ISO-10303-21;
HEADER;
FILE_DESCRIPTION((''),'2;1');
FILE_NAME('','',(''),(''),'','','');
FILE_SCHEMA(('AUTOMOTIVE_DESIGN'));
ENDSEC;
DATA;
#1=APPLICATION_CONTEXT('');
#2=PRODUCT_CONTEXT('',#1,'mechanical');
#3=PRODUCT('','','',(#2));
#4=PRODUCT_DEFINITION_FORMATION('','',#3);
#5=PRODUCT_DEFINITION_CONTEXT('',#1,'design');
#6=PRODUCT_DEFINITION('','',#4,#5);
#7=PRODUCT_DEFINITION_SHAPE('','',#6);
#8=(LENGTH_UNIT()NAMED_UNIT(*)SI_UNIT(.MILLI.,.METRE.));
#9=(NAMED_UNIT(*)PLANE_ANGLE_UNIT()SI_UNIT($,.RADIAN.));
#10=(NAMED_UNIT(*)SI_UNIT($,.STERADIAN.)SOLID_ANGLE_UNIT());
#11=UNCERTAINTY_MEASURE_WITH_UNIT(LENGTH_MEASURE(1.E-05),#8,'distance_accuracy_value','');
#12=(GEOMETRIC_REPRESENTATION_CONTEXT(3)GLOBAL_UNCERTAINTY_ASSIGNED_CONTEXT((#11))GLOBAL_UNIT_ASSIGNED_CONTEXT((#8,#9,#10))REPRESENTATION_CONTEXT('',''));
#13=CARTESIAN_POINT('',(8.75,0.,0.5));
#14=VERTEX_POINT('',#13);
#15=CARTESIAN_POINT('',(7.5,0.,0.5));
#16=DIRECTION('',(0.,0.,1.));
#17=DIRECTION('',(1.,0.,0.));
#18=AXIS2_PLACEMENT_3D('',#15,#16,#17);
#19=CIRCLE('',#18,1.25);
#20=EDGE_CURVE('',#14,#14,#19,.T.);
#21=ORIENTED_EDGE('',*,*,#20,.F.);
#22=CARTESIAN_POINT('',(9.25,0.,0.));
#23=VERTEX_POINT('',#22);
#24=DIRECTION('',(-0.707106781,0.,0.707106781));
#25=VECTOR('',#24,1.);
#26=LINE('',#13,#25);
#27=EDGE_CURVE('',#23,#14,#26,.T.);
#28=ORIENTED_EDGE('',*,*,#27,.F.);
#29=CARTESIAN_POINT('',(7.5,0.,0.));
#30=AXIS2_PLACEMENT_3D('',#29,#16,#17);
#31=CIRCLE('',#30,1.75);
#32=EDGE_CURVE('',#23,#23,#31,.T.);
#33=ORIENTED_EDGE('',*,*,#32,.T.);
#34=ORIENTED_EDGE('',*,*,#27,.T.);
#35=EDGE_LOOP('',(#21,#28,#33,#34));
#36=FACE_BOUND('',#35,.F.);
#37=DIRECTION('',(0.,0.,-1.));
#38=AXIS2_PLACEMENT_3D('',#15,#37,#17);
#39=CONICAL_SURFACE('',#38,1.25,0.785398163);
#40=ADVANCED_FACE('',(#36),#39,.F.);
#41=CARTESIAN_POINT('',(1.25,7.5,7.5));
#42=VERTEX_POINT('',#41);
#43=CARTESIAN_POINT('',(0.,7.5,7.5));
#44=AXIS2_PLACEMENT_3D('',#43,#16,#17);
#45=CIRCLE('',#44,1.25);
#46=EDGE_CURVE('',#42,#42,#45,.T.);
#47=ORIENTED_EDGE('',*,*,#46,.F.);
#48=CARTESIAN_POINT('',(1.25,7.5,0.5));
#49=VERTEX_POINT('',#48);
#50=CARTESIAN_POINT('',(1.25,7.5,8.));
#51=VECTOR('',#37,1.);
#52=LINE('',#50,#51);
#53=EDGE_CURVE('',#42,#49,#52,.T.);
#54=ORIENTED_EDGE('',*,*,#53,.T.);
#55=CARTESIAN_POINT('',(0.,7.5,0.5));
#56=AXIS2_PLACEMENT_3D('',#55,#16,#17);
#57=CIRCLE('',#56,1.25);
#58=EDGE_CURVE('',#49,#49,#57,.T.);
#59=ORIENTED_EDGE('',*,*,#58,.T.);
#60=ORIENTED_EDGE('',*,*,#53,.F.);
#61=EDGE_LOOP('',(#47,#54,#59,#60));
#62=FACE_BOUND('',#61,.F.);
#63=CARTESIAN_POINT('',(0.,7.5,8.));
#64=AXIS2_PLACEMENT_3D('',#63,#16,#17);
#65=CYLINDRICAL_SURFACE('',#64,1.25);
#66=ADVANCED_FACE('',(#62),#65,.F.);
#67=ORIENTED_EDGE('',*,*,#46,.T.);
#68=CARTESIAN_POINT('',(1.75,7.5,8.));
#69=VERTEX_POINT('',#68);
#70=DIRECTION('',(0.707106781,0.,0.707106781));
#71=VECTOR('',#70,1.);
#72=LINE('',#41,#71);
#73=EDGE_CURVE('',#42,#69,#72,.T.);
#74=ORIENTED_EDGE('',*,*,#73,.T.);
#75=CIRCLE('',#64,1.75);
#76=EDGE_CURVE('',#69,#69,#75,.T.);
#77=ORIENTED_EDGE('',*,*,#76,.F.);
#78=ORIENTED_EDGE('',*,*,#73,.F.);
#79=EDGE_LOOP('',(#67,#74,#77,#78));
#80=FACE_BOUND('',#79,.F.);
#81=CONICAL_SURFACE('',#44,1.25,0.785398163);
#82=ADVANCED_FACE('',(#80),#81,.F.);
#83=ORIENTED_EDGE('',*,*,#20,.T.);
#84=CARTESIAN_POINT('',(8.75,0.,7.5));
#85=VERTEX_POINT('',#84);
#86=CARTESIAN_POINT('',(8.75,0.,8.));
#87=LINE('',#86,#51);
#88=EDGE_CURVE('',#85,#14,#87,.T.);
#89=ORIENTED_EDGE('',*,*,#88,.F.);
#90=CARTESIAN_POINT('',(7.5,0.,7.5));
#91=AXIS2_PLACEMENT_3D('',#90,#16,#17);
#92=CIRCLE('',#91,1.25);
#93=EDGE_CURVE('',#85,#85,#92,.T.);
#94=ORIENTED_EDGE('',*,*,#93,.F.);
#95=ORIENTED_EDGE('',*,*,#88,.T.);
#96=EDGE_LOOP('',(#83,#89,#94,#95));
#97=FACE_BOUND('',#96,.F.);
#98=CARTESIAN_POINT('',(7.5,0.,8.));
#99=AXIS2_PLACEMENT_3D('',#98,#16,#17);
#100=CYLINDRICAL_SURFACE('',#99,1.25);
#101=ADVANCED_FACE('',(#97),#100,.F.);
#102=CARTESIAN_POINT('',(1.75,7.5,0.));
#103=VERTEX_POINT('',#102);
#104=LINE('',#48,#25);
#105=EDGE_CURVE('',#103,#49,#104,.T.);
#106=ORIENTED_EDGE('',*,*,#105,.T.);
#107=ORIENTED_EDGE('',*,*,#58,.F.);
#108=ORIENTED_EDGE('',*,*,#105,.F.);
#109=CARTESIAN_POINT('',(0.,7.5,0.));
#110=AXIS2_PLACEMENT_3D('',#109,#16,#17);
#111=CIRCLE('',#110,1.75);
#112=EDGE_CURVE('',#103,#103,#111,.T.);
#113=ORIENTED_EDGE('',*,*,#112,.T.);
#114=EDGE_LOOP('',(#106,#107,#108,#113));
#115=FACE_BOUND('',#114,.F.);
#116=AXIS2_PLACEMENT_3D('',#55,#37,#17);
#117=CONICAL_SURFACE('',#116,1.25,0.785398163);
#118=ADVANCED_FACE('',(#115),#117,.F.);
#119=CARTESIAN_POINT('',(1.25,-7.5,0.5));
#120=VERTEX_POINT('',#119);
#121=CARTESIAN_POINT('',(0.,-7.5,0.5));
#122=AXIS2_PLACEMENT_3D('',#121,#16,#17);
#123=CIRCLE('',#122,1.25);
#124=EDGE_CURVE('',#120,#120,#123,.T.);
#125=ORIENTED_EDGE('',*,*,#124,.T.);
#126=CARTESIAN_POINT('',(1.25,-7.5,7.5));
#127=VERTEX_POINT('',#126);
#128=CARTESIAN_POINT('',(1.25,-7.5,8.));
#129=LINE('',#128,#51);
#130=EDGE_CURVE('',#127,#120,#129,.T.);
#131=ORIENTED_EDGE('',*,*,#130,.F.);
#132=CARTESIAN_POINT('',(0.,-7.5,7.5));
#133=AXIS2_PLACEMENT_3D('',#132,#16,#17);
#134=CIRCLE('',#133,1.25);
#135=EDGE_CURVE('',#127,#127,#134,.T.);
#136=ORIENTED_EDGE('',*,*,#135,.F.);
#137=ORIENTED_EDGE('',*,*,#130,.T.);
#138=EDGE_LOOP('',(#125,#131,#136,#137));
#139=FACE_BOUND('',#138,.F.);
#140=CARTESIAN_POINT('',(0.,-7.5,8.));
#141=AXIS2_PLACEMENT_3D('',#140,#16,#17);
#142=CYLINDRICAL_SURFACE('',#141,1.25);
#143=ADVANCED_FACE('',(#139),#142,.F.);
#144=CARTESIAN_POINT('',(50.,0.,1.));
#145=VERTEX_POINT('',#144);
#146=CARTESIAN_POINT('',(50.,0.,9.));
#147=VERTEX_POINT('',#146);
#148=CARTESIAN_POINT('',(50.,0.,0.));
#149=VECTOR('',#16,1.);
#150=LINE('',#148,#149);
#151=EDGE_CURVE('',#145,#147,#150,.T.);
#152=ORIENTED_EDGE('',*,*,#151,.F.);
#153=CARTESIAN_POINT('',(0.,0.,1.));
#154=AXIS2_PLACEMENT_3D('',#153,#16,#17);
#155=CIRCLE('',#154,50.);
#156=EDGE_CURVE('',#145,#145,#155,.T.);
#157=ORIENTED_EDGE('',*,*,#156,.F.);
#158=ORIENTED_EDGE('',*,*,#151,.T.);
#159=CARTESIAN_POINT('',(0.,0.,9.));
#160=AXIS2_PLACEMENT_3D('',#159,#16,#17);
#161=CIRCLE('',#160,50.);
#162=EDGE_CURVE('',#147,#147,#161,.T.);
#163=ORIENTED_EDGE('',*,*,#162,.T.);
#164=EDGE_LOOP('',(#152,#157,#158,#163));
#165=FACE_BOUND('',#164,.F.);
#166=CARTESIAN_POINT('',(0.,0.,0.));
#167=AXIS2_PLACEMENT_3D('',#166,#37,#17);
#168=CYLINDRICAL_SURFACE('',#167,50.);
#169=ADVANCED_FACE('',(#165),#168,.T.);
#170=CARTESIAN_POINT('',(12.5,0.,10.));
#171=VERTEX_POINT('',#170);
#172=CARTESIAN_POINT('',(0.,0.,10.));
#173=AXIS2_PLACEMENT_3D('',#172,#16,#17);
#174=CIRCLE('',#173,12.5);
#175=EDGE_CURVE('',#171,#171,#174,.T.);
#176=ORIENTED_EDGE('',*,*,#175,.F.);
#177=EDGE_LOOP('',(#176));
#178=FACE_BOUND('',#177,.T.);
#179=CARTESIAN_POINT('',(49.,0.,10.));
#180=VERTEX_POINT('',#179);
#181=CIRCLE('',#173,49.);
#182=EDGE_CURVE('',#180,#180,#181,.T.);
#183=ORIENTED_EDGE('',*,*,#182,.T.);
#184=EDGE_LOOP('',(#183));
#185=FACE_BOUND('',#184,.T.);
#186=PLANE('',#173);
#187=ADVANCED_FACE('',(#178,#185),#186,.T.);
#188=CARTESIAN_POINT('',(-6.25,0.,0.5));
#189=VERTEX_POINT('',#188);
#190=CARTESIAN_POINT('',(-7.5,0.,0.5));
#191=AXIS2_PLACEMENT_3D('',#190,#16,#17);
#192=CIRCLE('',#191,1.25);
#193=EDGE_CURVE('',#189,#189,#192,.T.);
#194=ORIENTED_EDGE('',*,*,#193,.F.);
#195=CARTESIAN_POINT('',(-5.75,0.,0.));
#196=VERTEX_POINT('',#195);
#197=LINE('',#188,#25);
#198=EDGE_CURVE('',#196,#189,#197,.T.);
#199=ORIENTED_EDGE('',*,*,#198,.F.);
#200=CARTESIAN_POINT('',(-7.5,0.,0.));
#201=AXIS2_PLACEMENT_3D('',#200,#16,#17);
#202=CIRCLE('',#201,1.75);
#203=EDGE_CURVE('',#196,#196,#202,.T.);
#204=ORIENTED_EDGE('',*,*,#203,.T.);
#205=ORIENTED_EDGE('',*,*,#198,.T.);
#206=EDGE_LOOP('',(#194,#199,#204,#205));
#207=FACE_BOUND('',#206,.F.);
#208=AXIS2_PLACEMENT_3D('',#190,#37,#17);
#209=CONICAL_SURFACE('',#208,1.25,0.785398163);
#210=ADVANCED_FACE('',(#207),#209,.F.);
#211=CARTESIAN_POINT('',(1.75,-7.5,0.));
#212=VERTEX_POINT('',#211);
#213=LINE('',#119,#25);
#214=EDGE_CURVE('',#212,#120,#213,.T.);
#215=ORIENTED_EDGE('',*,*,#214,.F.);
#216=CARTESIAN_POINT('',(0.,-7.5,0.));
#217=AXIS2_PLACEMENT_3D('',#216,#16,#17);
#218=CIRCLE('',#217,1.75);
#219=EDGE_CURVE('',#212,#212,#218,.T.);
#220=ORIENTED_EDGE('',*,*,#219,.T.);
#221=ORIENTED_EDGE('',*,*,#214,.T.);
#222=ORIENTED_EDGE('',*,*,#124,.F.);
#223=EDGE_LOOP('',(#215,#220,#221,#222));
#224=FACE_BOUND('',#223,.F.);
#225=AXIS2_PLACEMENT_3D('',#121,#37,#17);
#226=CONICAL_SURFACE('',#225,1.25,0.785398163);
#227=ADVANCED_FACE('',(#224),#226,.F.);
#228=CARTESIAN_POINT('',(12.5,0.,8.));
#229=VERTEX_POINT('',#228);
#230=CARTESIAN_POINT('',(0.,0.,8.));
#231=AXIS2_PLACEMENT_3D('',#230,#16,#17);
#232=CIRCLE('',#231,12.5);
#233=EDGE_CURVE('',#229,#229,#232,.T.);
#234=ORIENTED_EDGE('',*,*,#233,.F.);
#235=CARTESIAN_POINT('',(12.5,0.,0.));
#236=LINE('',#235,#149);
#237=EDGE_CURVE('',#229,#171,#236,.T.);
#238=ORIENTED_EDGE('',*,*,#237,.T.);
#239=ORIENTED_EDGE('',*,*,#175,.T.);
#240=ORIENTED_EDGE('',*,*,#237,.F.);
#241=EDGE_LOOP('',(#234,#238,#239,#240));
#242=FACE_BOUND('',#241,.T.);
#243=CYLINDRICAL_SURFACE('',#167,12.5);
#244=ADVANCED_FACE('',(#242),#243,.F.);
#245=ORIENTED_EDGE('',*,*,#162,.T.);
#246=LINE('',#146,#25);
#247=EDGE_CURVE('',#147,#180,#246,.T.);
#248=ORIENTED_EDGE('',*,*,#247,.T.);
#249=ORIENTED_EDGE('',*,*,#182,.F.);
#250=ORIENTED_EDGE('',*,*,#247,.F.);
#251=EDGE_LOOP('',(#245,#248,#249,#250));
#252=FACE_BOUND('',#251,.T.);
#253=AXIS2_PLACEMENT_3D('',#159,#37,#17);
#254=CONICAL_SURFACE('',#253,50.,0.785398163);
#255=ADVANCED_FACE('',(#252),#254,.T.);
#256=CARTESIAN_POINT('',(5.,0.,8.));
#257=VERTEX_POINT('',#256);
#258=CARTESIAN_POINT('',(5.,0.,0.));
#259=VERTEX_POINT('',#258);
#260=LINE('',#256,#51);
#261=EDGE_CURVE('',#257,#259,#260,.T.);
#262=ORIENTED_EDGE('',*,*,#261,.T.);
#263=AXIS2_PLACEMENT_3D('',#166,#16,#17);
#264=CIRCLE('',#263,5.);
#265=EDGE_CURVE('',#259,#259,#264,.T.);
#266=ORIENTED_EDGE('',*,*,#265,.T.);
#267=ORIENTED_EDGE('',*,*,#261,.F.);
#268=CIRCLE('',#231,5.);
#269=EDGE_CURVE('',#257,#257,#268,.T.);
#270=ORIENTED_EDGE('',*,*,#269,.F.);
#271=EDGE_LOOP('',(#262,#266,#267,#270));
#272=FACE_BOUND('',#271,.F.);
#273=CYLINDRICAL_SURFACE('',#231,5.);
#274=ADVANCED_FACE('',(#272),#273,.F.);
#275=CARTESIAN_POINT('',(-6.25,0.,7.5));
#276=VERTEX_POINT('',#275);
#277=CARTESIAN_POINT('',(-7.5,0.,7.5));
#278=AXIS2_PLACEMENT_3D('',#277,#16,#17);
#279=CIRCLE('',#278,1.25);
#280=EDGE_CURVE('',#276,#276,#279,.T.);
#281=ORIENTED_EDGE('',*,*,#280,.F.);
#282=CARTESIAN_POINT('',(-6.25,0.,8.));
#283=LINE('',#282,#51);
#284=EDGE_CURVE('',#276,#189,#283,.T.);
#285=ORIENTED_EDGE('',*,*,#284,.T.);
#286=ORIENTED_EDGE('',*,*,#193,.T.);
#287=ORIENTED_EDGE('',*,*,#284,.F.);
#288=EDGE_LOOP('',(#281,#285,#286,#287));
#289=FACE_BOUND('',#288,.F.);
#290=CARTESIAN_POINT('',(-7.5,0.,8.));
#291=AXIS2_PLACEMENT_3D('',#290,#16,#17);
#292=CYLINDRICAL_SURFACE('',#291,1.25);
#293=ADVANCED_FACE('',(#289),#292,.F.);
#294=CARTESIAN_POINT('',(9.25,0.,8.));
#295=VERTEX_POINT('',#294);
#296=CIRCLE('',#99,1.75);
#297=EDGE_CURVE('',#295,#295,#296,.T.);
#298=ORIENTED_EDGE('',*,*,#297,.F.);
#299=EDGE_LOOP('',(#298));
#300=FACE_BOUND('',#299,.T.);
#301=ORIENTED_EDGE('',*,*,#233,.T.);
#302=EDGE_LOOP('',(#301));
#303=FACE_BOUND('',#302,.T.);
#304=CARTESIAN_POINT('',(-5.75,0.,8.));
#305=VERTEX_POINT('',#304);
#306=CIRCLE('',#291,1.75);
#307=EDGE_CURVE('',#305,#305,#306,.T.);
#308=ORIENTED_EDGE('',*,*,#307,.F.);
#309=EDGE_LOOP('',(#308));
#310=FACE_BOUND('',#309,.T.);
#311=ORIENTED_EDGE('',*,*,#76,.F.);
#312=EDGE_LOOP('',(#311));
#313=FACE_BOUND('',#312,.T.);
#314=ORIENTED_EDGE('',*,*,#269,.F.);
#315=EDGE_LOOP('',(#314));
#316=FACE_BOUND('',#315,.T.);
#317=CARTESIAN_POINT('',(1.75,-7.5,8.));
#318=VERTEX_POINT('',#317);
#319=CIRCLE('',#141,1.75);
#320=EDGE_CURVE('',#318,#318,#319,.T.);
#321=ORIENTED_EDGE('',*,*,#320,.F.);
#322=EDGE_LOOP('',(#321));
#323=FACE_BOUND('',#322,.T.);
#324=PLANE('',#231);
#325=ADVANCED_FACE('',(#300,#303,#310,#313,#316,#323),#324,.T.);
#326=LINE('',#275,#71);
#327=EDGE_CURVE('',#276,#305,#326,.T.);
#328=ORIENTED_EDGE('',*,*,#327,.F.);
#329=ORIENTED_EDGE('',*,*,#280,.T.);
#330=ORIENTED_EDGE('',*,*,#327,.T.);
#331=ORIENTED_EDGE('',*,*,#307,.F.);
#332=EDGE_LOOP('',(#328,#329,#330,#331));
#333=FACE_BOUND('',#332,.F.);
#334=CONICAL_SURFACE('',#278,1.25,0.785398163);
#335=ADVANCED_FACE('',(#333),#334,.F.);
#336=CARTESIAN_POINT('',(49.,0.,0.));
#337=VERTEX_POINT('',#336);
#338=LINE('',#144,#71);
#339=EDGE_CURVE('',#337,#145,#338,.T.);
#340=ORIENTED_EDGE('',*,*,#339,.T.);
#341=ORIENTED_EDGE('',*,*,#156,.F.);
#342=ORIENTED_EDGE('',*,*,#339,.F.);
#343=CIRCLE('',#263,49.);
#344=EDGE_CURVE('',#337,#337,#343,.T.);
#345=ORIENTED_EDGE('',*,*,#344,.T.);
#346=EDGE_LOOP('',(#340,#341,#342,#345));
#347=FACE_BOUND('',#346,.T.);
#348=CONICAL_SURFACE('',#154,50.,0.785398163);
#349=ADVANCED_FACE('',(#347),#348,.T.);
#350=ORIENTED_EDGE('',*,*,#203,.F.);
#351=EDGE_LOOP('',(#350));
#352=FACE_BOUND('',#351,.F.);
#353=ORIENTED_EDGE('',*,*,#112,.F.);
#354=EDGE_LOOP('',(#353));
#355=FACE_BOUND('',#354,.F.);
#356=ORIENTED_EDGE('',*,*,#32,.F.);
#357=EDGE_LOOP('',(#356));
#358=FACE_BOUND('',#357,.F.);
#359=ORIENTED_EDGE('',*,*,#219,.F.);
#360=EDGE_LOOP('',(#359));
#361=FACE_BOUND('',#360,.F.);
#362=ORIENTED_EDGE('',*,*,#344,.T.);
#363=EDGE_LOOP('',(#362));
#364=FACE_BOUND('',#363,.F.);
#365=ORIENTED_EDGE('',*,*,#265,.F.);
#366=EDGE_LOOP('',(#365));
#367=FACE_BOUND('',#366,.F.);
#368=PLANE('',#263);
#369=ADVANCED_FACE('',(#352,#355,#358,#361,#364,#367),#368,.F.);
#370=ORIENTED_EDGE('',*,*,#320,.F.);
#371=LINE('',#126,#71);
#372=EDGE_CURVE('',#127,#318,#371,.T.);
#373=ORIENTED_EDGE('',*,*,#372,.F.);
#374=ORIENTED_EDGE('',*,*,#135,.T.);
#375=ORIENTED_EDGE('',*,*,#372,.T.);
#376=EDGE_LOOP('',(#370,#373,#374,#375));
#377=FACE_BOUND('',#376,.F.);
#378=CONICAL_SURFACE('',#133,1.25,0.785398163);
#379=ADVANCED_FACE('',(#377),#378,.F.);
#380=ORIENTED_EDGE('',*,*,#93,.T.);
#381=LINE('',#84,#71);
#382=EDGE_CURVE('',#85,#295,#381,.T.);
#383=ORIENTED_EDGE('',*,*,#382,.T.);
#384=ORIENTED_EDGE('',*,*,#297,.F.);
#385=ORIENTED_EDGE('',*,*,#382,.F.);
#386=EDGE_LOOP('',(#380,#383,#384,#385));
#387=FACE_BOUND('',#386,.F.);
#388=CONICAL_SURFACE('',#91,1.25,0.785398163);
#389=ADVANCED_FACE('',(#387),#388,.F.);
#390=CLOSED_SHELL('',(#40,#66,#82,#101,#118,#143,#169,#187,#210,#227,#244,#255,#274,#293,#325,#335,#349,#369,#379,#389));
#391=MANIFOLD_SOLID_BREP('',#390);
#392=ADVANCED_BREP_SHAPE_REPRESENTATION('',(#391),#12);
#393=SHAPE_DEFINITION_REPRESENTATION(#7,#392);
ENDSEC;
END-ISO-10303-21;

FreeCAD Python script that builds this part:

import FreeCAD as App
import Part
import Sketcher


def edges_at(feature, points):
    """Names of the edges that pass closest to the given points."""
    edges = feature.Shape.Edges
    near = lambda p: min(range(len(edges)), key=lambda i: edges[i].distToShape(Part.Vertex(*p))[0])
    return sorted({f"Edge{near(p) + 1}" for p in points})

doc = App.newDocument("Part")
body = doc.addObject("PartDesign::Body", "Body")

# Sketch on XY plane
sketch1 = body.newObject("Sketcher::SketchObject", "Sketch")
sketch1.AttachmentSupport = (doc.getObject("XY_Plane"), [""])
sketch1.MapMode = "FlatFace"
sketch1.addGeometry([
    Part.Circle(App.Vector(0, 0, 0), App.Vector(0, 0, 1), 50),
    Part.Circle(App.Vector(0, 0, 0), App.Vector(0, 0, 1), 12.5),
], False)
sketch1.addConstraint([
    Sketcher.Constraint("Coincident", 0, 3, -1, 1),
    Sketcher.Constraint("Coincident", 1, 3, -1, 1),
    Sketcher.Constraint("Diameter", 0, 100.0),
    Sketcher.Constraint("Diameter", 1, 25.0),
])
pad1 = body.newObject("PartDesign::Pad", "Pad")
pad1.Profile = sketch1
pad1.Length = 10

# Sketch on XY plane
sketch2 = body.newObject("Sketcher::SketchObject", "Sketch001")
sketch2.AttachmentSupport = (doc.getObject("XY_Plane"), [""])
sketch2.MapMode = "FlatFace"
sketch2.addGeometry(Part.Circle(App.Vector(0, 0, 0), App.Vector(0, 0, 1), 12.5), False)
sketch2.addConstraint([
    Sketcher.Constraint("Coincident", 0, 3, -1, 1),
    Sketcher.Constraint("Diameter", 0, 25.0),
])
pad2 = body.newObject("PartDesign::Pad", "Pad001")
pad2.Profile = sketch2
pad2.Length = 8

# Sketch on XY plane
sketch3 = body.newObject("Sketcher::SketchObject", "Sketch002")
sketch3.AttachmentSupport = (doc.getObject("XY_Plane"), [""])
sketch3.MapMode = "FlatFace"
sketch3.AttachmentOffset = App.Placement(App.Vector(0, 0, 8), App.Rotation())
sketch3.addGeometry([
    Part.Circle(App.Vector(0, 0, 0), App.Vector(0, 0, 1), 5),  # 0
    Part.Circle(App.Vector(-7.5, 0, 0), App.Vector(0, 0, 1), 1.25),  # 1
    Part.Circle(App.Vector(0, 7.5, 0), App.Vector(0, 0, 1), 1.25),  # 2
    Part.Circle(App.Vector(7.5, 0, 0), App.Vector(0, 0, 1), 1.25),  # 3
    Part.Circle(App.Vector(0, -7.5, 0), App.Vector(0, 0, 1), 1.25),  # 4
], False)
sketch3.addConstraint([
    Sketcher.Constraint("Coincident", 0, 3, -1, 1),
    Sketcher.Constraint("Equal", 1, 2),
    Sketcher.Constraint("Equal", 2, 3),
    Sketcher.Constraint("Equal", 3, 4),
    Sketcher.Constraint("Symmetric", 1, 3, 3, 3, -1, 1),
    Sketcher.Constraint("Symmetric", 2, 3, 4, 3, -1, 1),
    Sketcher.Constraint("PointOnObject", 1, 3, -1),
    Sketcher.Constraint("PointOnObject", 2, 3, -2),
    Sketcher.Constraint("Diameter", 0, 10.0),
    Sketcher.Constraint("Diameter", 1, 2.5),
    Sketcher.Constraint("DistanceX", 1, 3, 3, 3, 15.0),
    Sketcher.Constraint("DistanceY", 4, 3, 2, 3, 15.0),
])
pocket1 = body.newObject("PartDesign::Pocket", "Pocket")
pocket1.Profile = sketch3
pocket1.Length = 25
doc.recompute()

chamfer = body.newObject("PartDesign::Chamfer", "Chamfer")
chamfer.Base = (pocket1, edges_at(pocket1, [(-50, 0, 0), (-50, 0, 10)]))
chamfer.Size = 1
doc.recompute()

chamfer2 = body.newObject("PartDesign::Chamfer", "Chamfer001")
chamfer2.Base = (chamfer, edges_at(chamfer, [
    (-8.75, 0, 0),
    (-1.25, -7.5, 0),
    (6.25, 0, 0),
    (-1.25, 7.5, 0),
    (6.25, 0, 8),
    (-1.25, -7.5, 8),
    (-1.25, 7.5, 8),
    (-8.75, 0, 8),
]))
chamfer2.Size = 0.5

doc.recompute()
